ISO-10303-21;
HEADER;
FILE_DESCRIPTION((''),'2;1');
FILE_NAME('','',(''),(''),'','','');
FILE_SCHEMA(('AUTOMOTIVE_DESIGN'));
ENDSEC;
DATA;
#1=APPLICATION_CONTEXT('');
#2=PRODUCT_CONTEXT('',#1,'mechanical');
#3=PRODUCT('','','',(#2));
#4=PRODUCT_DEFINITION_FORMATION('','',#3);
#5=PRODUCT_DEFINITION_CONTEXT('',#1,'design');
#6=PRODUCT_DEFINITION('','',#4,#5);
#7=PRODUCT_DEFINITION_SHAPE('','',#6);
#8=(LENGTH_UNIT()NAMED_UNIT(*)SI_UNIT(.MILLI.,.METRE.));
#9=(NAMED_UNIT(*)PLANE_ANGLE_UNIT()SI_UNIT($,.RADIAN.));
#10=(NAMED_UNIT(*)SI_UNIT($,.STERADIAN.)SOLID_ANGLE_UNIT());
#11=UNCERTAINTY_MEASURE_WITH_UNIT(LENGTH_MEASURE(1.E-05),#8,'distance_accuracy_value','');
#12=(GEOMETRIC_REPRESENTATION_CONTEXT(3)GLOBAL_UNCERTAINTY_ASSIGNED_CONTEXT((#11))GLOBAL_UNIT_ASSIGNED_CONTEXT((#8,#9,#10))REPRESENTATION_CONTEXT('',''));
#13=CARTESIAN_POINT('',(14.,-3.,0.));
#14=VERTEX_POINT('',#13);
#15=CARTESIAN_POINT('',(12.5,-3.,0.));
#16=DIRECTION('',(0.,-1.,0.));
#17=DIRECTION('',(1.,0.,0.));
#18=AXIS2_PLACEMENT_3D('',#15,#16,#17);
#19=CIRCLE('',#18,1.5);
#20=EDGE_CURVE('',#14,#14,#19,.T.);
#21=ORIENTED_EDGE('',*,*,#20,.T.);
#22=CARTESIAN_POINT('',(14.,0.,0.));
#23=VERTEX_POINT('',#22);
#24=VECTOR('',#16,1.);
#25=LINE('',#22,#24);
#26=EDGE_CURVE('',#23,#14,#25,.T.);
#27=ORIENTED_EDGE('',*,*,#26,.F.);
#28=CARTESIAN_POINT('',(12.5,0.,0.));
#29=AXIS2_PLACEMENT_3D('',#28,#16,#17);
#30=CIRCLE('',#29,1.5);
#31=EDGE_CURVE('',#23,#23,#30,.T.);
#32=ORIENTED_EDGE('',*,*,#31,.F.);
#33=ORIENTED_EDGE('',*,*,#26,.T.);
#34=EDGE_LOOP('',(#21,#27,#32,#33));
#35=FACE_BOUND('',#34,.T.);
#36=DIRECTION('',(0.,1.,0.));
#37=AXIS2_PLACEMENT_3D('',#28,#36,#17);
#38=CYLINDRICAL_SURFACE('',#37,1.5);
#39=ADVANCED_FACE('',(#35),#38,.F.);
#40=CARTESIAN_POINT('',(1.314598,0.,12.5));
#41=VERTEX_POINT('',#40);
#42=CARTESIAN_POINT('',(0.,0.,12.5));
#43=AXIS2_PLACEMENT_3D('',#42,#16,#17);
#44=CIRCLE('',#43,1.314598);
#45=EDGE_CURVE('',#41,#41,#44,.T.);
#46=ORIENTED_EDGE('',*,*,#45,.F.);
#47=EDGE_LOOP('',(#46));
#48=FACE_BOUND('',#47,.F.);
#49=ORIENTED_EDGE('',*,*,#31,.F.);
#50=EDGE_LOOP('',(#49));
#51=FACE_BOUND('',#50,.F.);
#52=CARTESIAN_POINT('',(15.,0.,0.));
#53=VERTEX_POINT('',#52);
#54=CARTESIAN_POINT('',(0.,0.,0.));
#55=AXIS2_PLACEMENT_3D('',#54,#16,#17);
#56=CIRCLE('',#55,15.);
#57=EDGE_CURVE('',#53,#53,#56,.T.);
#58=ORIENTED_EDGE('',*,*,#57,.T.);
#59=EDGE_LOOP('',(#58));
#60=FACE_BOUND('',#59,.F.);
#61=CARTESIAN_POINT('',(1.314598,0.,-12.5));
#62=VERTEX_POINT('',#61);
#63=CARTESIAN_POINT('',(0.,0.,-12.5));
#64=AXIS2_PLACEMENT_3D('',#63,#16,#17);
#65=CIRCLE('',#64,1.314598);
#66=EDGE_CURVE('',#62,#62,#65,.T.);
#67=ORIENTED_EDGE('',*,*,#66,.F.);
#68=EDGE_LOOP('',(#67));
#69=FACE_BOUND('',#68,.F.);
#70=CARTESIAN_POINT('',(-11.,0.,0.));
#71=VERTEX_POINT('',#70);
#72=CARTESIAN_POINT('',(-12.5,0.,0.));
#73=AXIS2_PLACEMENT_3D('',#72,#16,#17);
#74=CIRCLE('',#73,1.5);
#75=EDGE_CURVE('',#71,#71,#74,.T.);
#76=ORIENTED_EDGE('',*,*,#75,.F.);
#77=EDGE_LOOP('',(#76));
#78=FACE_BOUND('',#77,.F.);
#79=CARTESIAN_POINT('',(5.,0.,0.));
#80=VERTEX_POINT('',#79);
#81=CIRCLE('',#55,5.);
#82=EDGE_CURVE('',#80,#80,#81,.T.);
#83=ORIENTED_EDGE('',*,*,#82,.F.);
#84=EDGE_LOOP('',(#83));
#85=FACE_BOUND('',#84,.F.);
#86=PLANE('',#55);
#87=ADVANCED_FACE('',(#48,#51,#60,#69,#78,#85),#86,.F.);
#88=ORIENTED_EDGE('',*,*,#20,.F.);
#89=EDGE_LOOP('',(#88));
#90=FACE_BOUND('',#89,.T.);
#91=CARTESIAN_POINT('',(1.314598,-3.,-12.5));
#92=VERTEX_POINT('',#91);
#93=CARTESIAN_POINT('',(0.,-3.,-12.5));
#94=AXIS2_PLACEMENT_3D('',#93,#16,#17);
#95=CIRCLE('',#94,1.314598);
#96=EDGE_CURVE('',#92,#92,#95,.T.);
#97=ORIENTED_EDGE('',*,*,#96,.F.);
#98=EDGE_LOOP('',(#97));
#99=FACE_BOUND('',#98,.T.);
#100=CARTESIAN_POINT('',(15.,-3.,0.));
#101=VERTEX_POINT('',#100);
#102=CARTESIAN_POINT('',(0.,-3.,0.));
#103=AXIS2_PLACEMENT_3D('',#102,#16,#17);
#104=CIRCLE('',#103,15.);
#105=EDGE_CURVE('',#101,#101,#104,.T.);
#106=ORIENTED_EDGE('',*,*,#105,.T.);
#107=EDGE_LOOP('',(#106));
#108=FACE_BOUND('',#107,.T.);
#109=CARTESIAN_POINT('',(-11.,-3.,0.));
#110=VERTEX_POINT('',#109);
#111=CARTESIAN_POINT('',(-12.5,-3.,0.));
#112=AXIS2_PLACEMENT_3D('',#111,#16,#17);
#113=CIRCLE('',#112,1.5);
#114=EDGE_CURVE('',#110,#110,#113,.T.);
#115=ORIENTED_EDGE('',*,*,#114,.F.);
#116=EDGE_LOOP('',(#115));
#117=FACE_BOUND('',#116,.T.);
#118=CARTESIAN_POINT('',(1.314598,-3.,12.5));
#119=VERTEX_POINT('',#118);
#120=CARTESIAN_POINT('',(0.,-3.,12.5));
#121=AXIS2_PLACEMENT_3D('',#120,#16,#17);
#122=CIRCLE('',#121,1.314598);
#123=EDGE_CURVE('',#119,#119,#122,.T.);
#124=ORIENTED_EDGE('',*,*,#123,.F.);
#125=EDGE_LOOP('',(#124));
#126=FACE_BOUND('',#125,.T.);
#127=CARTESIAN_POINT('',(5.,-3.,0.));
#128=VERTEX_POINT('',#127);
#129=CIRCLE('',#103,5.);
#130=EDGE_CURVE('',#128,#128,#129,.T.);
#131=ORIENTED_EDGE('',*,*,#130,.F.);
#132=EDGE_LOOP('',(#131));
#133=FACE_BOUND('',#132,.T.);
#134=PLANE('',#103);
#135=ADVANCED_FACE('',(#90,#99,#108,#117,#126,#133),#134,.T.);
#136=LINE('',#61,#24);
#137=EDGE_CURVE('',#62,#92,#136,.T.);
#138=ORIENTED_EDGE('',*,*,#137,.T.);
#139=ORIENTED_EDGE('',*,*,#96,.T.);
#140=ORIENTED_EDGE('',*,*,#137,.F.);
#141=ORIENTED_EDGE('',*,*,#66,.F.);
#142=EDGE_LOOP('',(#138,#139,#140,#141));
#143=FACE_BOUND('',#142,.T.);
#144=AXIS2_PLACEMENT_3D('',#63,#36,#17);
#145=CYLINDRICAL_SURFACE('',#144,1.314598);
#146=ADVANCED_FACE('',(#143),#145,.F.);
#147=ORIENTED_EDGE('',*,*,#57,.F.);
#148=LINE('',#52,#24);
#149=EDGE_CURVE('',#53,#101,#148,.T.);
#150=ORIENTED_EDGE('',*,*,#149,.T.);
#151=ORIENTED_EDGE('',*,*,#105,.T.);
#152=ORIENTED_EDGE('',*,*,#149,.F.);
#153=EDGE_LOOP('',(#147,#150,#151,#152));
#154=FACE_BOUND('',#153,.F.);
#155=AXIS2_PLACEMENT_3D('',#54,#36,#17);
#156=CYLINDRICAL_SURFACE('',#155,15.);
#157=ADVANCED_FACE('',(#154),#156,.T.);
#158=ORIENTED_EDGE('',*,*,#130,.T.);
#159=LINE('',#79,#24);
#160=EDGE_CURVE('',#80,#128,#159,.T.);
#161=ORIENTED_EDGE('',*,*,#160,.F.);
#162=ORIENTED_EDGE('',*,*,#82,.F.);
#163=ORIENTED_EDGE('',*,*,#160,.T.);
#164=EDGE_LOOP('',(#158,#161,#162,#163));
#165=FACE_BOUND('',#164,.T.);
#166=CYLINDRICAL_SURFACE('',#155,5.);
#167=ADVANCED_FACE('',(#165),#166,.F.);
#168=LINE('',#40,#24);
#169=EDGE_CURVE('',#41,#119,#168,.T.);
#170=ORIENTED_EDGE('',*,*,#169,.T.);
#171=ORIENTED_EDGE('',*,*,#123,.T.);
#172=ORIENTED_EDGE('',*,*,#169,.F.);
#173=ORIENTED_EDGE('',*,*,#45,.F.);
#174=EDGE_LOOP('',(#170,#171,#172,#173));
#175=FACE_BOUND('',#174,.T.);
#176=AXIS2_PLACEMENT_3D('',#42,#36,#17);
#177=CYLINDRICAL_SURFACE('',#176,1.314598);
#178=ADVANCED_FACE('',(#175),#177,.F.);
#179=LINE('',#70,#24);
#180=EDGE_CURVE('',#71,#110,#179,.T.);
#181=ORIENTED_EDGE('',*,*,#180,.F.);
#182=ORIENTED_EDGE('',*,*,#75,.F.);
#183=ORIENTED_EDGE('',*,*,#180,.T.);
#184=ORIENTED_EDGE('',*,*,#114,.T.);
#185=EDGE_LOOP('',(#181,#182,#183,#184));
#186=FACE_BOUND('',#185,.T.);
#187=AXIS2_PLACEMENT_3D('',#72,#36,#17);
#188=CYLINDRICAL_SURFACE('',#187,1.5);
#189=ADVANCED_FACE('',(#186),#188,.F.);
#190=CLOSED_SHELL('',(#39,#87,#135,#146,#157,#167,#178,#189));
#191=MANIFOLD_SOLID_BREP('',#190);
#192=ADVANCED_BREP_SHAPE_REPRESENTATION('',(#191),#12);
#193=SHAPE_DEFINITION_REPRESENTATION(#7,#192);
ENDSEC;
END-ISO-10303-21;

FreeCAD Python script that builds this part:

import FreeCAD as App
import Part
import Sketcher

doc = App.newDocument("Part")
body = doc.addObject("PartDesign::Body", "Body")

# Sketch on XZ plane
sketch1 = body.newObject("Sketcher::SketchObject", "Sketch")
sketch1.AttachmentSupport = (doc.getObject("XZ_Plane"), [""])
sketch1.MapMode = "FlatFace"
sketch1.addGeometry([
    Part.Circle(App.Vector(0, 0, 0), App.Vector(0, 0, 1), 15),  # 0
    Part.Circle(App.Vector(-12.5, 0, 0), App.Vector(0, 0, 1), 1.5),  # 1
    Part.Circle(App.Vector(0, -12.5, 0), App.Vector(0, 0, 1), 1.3),  # 2
    Part.Circle(App.Vector(0, 0, 0), App.Vector(0, 0, 1), 5),  # 3
    Part.Circle(App.Vector(12.5, 0, 0), App.Vector(0, 0, 1), 1.5),  # 4
    Part.Circle(App.Vector(0, 12.5, 0), App.Vector(0, 0, 1), 1.3),  # 5
], False)
sketch1.addConstraint([
    Sketcher.Constraint("Coincident", 0, 3, -1, 1),
    Sketcher.Constraint("Coincident", 3, 3, -1, 1),
    Sketcher.Constraint("Equal", 1, 4),
    Sketcher.Constraint("Equal", 2, 5),
    Sketcher.Constraint("Symmetric", 1, 3, 4, 3, -1, 1),
    Sketcher.Constraint("Symmetric", 2, 3, 5, 3, -1, 1),
    Sketcher.Constraint("PointOnObject", 1, 3, -1),
    Sketcher.Constraint("PointOnObject", 2, 3, -2),
    Sketcher.Constraint("Diameter", 0, 30.0),
    Sketcher.Constraint("Diameter", 1, 3.0),
    Sketcher.Constraint("Diameter", 3, 10.0),
    Sketcher.Constraint("DistanceX", 1, 3, 4, 3, 25.0),
    Sketcher.Constraint("DistanceY", 2, 3, 5, 3, 25.0),
    Sketcher.Constraint("Diameter", 2, 2.629196),
])
pad1 = body.newObject("PartDesign::Pad", "Pad")
pad1.Profile = sketch1
pad1.Length = 3

doc.recompute()
